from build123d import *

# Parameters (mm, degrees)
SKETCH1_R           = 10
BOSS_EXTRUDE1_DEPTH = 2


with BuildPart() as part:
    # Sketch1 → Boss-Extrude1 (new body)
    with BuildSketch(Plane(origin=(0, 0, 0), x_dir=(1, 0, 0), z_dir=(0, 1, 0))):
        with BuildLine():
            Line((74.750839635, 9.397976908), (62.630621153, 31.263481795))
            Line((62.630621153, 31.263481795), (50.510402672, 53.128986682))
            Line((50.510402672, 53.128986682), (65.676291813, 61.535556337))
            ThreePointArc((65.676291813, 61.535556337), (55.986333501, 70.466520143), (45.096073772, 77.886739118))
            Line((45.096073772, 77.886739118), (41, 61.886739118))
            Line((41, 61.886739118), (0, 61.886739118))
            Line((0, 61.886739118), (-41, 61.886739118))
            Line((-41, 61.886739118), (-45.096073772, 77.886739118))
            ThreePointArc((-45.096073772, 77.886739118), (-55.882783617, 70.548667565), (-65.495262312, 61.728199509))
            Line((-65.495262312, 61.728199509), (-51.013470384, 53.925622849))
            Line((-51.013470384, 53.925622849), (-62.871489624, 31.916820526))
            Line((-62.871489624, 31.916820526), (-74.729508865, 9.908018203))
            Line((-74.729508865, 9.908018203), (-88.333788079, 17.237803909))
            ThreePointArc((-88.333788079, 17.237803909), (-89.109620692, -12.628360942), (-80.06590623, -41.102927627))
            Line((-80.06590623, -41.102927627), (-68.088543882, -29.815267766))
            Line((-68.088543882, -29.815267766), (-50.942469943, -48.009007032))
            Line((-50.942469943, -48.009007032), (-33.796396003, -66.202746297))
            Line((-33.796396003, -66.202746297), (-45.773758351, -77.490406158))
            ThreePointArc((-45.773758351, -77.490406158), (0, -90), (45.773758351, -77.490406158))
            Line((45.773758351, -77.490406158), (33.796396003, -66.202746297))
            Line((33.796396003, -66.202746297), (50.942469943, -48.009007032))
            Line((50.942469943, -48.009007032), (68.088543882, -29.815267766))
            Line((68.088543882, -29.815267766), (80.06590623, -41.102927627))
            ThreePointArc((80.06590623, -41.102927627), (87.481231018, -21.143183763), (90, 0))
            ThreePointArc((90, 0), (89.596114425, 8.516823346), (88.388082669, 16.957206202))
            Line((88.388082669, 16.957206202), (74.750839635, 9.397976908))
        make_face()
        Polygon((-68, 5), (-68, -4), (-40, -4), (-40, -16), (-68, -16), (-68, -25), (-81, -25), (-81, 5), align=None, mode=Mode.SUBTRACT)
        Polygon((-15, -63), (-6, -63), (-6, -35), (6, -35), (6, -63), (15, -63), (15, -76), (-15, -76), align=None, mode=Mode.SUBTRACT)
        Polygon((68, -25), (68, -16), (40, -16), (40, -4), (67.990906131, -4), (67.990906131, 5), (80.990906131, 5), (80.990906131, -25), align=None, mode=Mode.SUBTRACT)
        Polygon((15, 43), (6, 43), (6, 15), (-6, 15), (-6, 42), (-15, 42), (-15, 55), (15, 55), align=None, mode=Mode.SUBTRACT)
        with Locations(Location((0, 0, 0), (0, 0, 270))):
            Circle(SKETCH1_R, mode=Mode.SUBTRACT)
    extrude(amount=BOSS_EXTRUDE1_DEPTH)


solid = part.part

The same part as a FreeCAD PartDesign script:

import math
import FreeCAD as App
import Part
import Sketcher

doc = App.newDocument("Part")
params = doc.addObject("Spreadsheet::Sheet", "Params")
for row, (alias, value) in enumerate([
    ("sketch1_diameter", "20 mm"),
    ("sketch1_radius", "90 mm"),
    ("sketch1_width", "82 mm"),
    ("sketch1_width2", "9 mm"),
    ("sketch1_width3", "12 mm"),
    ("pad1_length", "2 mm"),
], start=1):
    params.set(f"A{row}", alias)
    params.set(f"B{row}", "=" + value)
    params.setAlias(f"B{row}", alias)

body = doc.addObject("PartDesign::Body", "Body")

# Sketch on XZ plane
sketch1 = doc.addObject("Sketcher::SketchObject", "Sketch")
body.addObject(sketch1)
sketch1.AttachmentSupport = (doc.XZ_Plane, [""])
sketch1.MapMode = "FlatFace"
sketch1.addGeometry([
    Part.LineSegment(App.Vector(74.75084, -9.397977, 0), App.Vector(62.630621, -31.263482, 0)),  # 0
    Part.LineSegment(App.Vector(62.630621, -31.263482, 0), App.Vector(50.510403, -53.128987, 0)),  # 1
    Part.LineSegment(App.Vector(50.510403, -53.128987, 0), App.Vector(65.676292, -61.535556, 0)),  # 2
    Part.ArcOfCircle(Part.Circle(App.Vector(0, 0, 0), App.Vector(0, 0, 1), 90), math.radians(-59.92935), math.radians(-43.135685)),  # 3
    Part.LineSegment(App.Vector(45.096074, -77.886739, 0), App.Vector(41, -61.886739, 0)),  # 4
    Part.LineSegment(App.Vector(41, -61.886739, 0), App.Vector(-41, -61.886739, 0)),  # 5
    Part.LineSegment(App.Vector(-41, -61.886739, 0), App.Vector(-45.096074, -77.886739, 0)),  # 6
    Part.ArcOfCircle(Part.Circle(App.Vector(0, 0, 0), App.Vector(0, 0, 1), 90), math.radians(-136.696022), math.radians(-120.070649)),  # 7
    Part.LineSegment(App.Vector(-65.495262, -61.7282, 0), App.Vector(-51.01347, -53.925623, 0)),  # 8
    Part.LineSegment(App.Vector(-51.01347, -53.925623, 0), App.Vector(-62.87149, -31.916821, 0)),  # 9
    Part.LineSegment(App.Vector(-62.87149, -31.916821, 0), App.Vector(-74.729509, -9.908018, 0)),  # 10
    Part.LineSegment(App.Vector(-74.729509, -9.908018, 0), App.Vector(-88.333788, -17.237804, 0)),  # 11
    Part.ArcOfCircle(Part.Circle(App.Vector(0, 0, 0), App.Vector(0, 0, 1), 90), math.radians(152.825683), math.radians(191.042154)),  # 12
    Part.LineSegment(App.Vector(-80.065906, 41.102928, 0), App.Vector(-68.088544, 29.815268, 0)),  # 13
    Part.LineSegment(App.Vector(-68.088544, 29.815268, 0), App.Vector(-50.94247, 48.009007, 0)),  # 14
    Part.LineSegment(App.Vector(-50.94247, 48.009007, 0), App.Vector(-33.796396, 66.202746, 0)),  # 15
    Part.LineSegment(App.Vector(-33.796396, 66.202746, 0), App.Vector(-45.773758, 77.490406, 0)),  # 16
    Part.ArcOfCircle(Part.Circle(App.Vector(0, 0, 0), App.Vector(0, 0, 1), 90), math.radians(59.429557), math.radians(120.570443)),  # 17
    Part.LineSegment(App.Vector(45.773758, 77.490406, 0), App.Vector(33.796396, 66.202746, 0)),  # 18
    Part.LineSegment(App.Vector(33.796396, 66.202746, 0), App.Vector(50.94247, 48.009007, 0)),  # 19
    Part.LineSegment(App.Vector(50.94247, 48.009007, 0), App.Vector(68.088544, 29.815268, 0)),  # 20
    Part.LineSegment(App.Vector(68.088544, 29.815268, 0), App.Vector(80.065906, 41.102928, 0)),  # 21
    Part.ArcOfCircle(Part.Circle(App.Vector(0, 0, 0), App.Vector(0, 0, 1), 90), math.radians(0), math.radians(27.174317)),  # 22
    Part.ArcOfCircle(Part.Circle(App.Vector(0, 0, 0), App.Vector(0, 0, 1), 90), math.radians(-10.860207), math.radians(0)),  # 23
    Part.LineSegment(App.Vector(88.388083, -16.957206, 0), App.Vector(74.75084, -9.397977, 0)),  # 24
    Part.LineSegment(App.Vector(-15, 76, 0), App.Vector(-15, 63, 0)),  # 25
    Part.LineSegment(App.Vector(-15, 63, 0), App.Vector(-6, 63, 0)),  # 26
    Part.LineSegment(App.Vector(-6, 63, 0), App.Vector(-6, 35, 0)),  # 27
    Part.LineSegment(App.Vector(-6, 35, 0), App.Vector(6, 35, 0)),  # 28
    Part.LineSegment(App.Vector(6, 35, 0), App.Vector(6, 63, 0)),  # 29
    Part.LineSegment(App.Vector(6, 63, 0), App.Vector(15, 63, 0)),  # 30
    Part.LineSegment(App.Vector(15, 63, 0), App.Vector(15, 76, 0)),  # 31
    Part.LineSegment(App.Vector(15, 76, 0), App.Vector(-15, 76, 0)),  # 32
    Part.LineSegment(App.Vector(-81, -5, 0), App.Vector(-68, -5, 0)),  # 33
    Part.LineSegment(App.Vector(-68, -5, 0), App.Vector(-68, 4, 0)),  # 34
    Part.LineSegment(App.Vector(-68, 4, 0), App.Vector(-40, 4, 0)),  # 35
    Part.LineSegment(App.Vector(-40, 4, 0), App.Vector(-40, 16, 0)),  # 36
    Part.LineSegment(App.Vector(-40, 16, 0), App.Vector(-68, 16, 0)),  # 37
    Part.LineSegment(App.Vector(-68, 16, 0), App.Vector(-68, 25, 0)),  # 38
    Part.LineSegment(App.Vector(-68, 25, 0), App.Vector(-81, 25, 0)),  # 39
    Part.LineSegment(App.Vector(-81, 25, 0), App.Vector(-81, -5, 0)),  # 40
    Part.Circle(App.Vector(0, 0, 0), App.Vector(0, 0, 1), 10),  # 41
    Part.LineSegment(App.Vector(80.990906, 25, 0), App.Vector(68, 25, 0)),  # 42
    Part.LineSegment(App.Vector(68, 25, 0), App.Vector(68, 16, 0)),  # 43
    Part.LineSegment(App.Vector(68, 16, 0), App.Vector(40, 16, 0)),  # 44
    Part.LineSegment(App.Vector(40, 16, 0), App.Vector(40, 4, 0)),  # 45
    Part.LineSegment(App.Vector(40, 4, 0), App.Vector(67.990906, 4, 0)),  # 46
    Part.LineSegment(App.Vector(67.990906, 4, 0), App.Vector(67.990906, -5, 0)),  # 47
    Part.LineSegment(App.Vector(67.990906, -5, 0), App.Vector(80.990906, -5, 0)),  # 48
    Part.LineSegment(App.Vector(80.990906, -5, 0), App.Vector(80.990906, 25, 0)),  # 49
    Part.LineSegment(App.Vector(15, -55, 0), App.Vector(15, -43, 0)),  # 50
    Part.LineSegment(App.Vector(15, -43, 0), App.Vector(6, -43, 0)),  # 51
    Part.LineSegment(App.Vector(6, -43, 0), App.Vector(6, -15, 0)),  # 52
    Part.LineSegment(App.Vector(6, -15, 0), App.Vector(-6, -15, 0)),  # 53
    Part.LineSegment(App.Vector(-6, -15, 0), App.Vector(-6, -42, 0)),  # 54
    Part.LineSegment(App.Vector(-6, -42, 0), App.Vector(-15, -42, 0)),  # 55
    Part.LineSegment(App.Vector(-15, -42, 0), App.Vector(-15, -55, 0)),  # 56
    Part.LineSegment(App.Vector(-15, -55, 0), App.Vector(15, -55, 0)),  # 57
], False)
sketch1.addConstraint([
    Sketcher.Constraint("Coincident", 0, 2, 1, 1),
    Sketcher.Constraint("Coincident", 1, 2, 2, 1),
    Sketcher.Constraint("Coincident", 2, 2, 3, 2),
    Sketcher.Constraint("Coincident", 3, 1, 4, 1),
    Sketcher.Constraint("Coincident", 4, 2, 5, 1),
    Sketcher.Constraint("Coincident", 5, 2, 6, 1),
    Sketcher.Constraint("Coincident", 6, 2, 7, 2),
    Sketcher.Constraint("Coincident", 7, 1, 8, 1),
    Sketcher.Constraint("Coincident", 8, 2, 9, 1),
    Sketcher.Constraint("Coincident", 9, 2, 10, 1),
    Sketcher.Constraint("Coincident", 10, 2, 11, 1),
    Sketcher.Constraint("Coincident", 11, 2, 12, 2),
    Sketcher.Constraint("Coincident", 12, 1, 13, 1),
    Sketcher.Constraint("Coincident", 13, 2, 14, 1),
    Sketcher.Constraint("Coincident", 14, 2, 15, 1),
    Sketcher.Constraint("Coincident", 15, 2, 16, 1),
    Sketcher.Constraint("Coincident", 16, 2, 17, 2),
    Sketcher.Constraint("Coincident", 17, 1, 18, 1),
    Sketcher.Constraint("Coincident", 18, 2, 19, 1),
    Sketcher.Constraint("Coincident", 19, 2, 20, 1),
    Sketcher.Constraint("Coincident", 20, 2, 21, 1),
    Sketcher.Constraint("Coincident", 21, 2, 22, 2),
    Sketcher.Constraint("Tangent", 22, 1, 23, 2),
    Sketcher.Constraint("Coincident", 23, 1, 24, 1),
    Sketcher.Constraint("Coincident", 24, 2, 0, 1),
    Sketcher.Constraint("Coincident", 25, 2, 26, 1),
    Sketcher.Constraint("Coincident", 26, 2, 27, 1),
    Sketcher.Constraint("Coincident", 27, 2, 28, 1),
    Sketcher.Constraint("Coincident", 28, 2, 29, 1),
    Sketcher.Constraint("Coincident", 29, 2, 30, 1),
    Sketcher.Constraint("Coincident", 30, 2, 31, 1),
    Sketcher.Constraint("Coincident", 31, 2, 32, 1),
    Sketcher.Constraint("Coincident", 32, 2, 25, 1),
    Sketcher.Constraint("Coincident", 33, 2, 34, 1),
    Sketcher.Constraint("Coincident", 34, 2, 35, 1),
    Sketcher.Constraint("Coincident", 35, 2, 36, 1),
    Sketcher.Constraint("Coincident", 36, 2, 37, 1),
    Sketcher.Constraint("Coincident", 37, 2, 38, 1),
    Sketcher.Constraint("Coincident", 38, 2, 39, 1),
    Sketcher.Constraint("Coincident", 39, 2, 40, 1),
    Sketcher.Constraint("Coincident", 40, 2, 33, 1),
    Sketcher.Constraint("Coincident", 42, 2, 43, 1),
    Sketcher.Constraint("Coincident", 43, 2, 44, 1),
    Sketcher.Constraint("Coincident", 44, 2, 45, 1),
    Sketcher.Constraint("Coincident", 45, 2, 46, 1),
    Sketcher.Constraint("Coincident", 46, 2, 47, 1),
    Sketcher.Constraint("Coincident", 47, 2, 48, 1),
    Sketcher.Constraint("Coincident", 48, 2, 49, 1),
    Sketcher.Constraint("Coincident", 49, 2, 42, 1),
    Sketcher.Constraint("Coincident", 50, 2, 51, 1),
    Sketcher.Constraint("Coincident", 51, 2, 52, 1),
    Sketcher.Constraint("Coincident", 52, 2, 53, 1),
    Sketcher.Constraint("Coincident", 53, 2, 54, 1),
    Sketcher.Constraint("Coincident", 54, 2, 55, 1),
    Sketcher.Constraint("Coincident", 55, 2, 56, 1),
    Sketcher.Constraint("Coincident", 56, 2, 57, 1),
    Sketcher.Constraint("Coincident", 57, 2, 50, 1),
    Sketcher.Constraint("Horizontal", 5),
    Sketcher.Constraint("Vertical", 25),
    Sketcher.Constraint("Horizontal", 26),
    Sketcher.Constraint("Vertical", 27),
    Sketcher.Constraint("Horizontal", 28),
    Sketcher.Constraint("Vertical", 29),
    Sketcher.Constraint("Horizontal", 30),
    Sketcher.Constraint("Vertical", 31),
    Sketcher.Constraint("Horizontal", 32),
    Sketcher.Constraint("Horizontal", 33),
    Sketcher.Constraint("Vertical", 34),
    Sketcher.Constraint("Horizontal", 35),
    Sketcher.Constraint("Vertical", 36),
    Sketcher.Constraint("Horizontal", 37),
    Sketcher.Constraint("Vertical", 38),
    Sketcher.Constraint("Horizontal", 39),
    Sketcher.Constraint("Vertical", 40),
    Sketcher.Constraint("Horizontal", 42),
    Sketcher.Constraint("Vertical", 43),
    Sketcher.Constraint("Horizontal", 44),
    Sketcher.Constraint("Vertical", 45),
    Sketcher.Constraint("Horizontal", 46),
    Sketcher.Constraint("Vertical", 47),
    Sketcher.Constraint("Horizontal", 48),
    Sketcher.Constraint("Vertical", 49),
    Sketcher.Constraint("Vertical", 50),
    Sketcher.Constraint("Horizontal", 51),
    Sketcher.Constraint("Vertical", 52),
    Sketcher.Constraint("Horizontal", 53),
    Sketcher.Constraint("Vertical", 54),
    Sketcher.Constraint("Horizontal", 55),
    Sketcher.Constraint("Vertical", 56),
    Sketcher.Constraint("Horizontal", 57),
    Sketcher.Constraint("Coincident", 3, 3, -1, 1),
    Sketcher.Constraint("Coincident", 7, 3, -1, 1),
    Sketcher.Constraint("Coincident", 12, 3, -1, 1),
    Sketcher.Constraint("Coincident", 17, 3, -1, 1),
    Sketcher.Constraint("Coincident", 22, 3, -1, 1),
    Sketcher.Constraint("Coincident", 41, 3, -1, 1),
    Sketcher.Constraint("Equal", 3, 7),
    Sketcher.Constraint("Equal", 7, 12),
    Sketcher.Constraint("Equal", 12, 17),
    Sketcher.Constraint("Equal", 17, 22),
    Sketcher.Constraint("Equal", 22, 23),
    Sketcher.Constraint("Symmetric", 15, 2, 18, 2, -2),
    Sketcher.Constraint("Symmetric", 14, 2, 19, 2, -2),
    Sketcher.Constraint("Symmetric", 13, 2, 20, 2, -2),
    Sketcher.Constraint("Symmetric", 26, 2, 29, 2, -2),
    Sketcher.Constraint("Symmetric", 38, 2, 42, 2, -2),
    Sketcher.Constraint("Symmetric", 36, 2, 44, 2, -2),
    Sketcher.Constraint("PointOnObject", 22, 1, -1),
    Sketcher.Constraint("Parallel", 0, 1),
    Sketcher.Constraint("Perpendicular", 1, 2),
    Sketcher.Constraint("Perpendicular", 8, 9),
    Sketcher.Constraint("Parallel", 9, 10),
    Sketcher.Constraint("Perpendicular", 10, 11),
    Sketcher.Constraint("Perpendicular", 13, 14),
    Sketcher.Constraint("Parallel", 14, 15),
    Sketcher.Constraint("Perpendicular", 15, 16),
    Sketcher.Constraint("Perpendicular", 18, 19),
    Sketcher.Constraint("Perpendicular", 20, 21),
    Sketcher.Constraint("Parallel", 2, 24),
    Sketcher.Constraint("Horizontal", 3, 1, 6, 2),
    Sketcher.Constraint("Horizontal", 35, 2, 45, 2),
    Sketcher.Constraint("Horizontal", 40, 2, 47, 2),
    Sketcher.Constraint("Vertical", 34, 2, 37, 2),
    Sketcher.Constraint("Vertical", 31, 2, 50, 2),
    Sketcher.Constraint("Vertical", 29, 2, 51, 2),
    Sketcher.Constraint("Vertical", 27, 2, 53, 2),
    Sketcher.Constraint("Vertical", 32, 2, 55, 2),
    Sketcher.Constraint("Equal", 26, 30),
    Sketcher.Constraint("Equal", 39, 48),
    Sketcher.Constraint("Equal", 48, 25),
    Sketcher.Constraint("Equal", 44, 27),
    Sketcher.Constraint("Equal", 55, 34),
    Sketcher.Constraint("Equal", 53, 36),
    Sketcher.Constraint("Equal", 34, 38),
    Sketcher.Constraint("Equal", 45, 50),
    Sketcher.Constraint("Equal", 29, 52),
    Sketcher.Constraint("Equal", 31, 56),
    Sketcher.Constraint("Equal", 0, 1),
    Sketcher.Constraint("Equal", 4, 6),
    Sketcher.Constraint("Equal", 1, 9),
    Sketcher.Constraint("Equal", 9, 10),
    Sketcher.Constraint("Equal", 10, 14),
    Sketcher.Constraint("Equal", 14, 15),
    Sketcher.Constraint("Equal", 13, 16),
    Sketcher.Constraint("Diameter", 41, 20.0),
    Sketcher.Constraint("Radius", 3, 90.0),
    Sketcher.Constraint("DistanceX", 5, 2, 5, 1, 82.0),
    Sketcher.Constraint("DistanceX", 26, 1, 26, 2, 9.0),
    Sketcher.Constraint("DistanceX", 28, 1, 28, 2, 12.0),
    Sketcher.Constraint("DistanceX", 33, 1, 33, 2, 13.0),
    Sketcher.Constraint("DistanceX", 35, 1, 35, 2, 28.0),
    Sketcher.Constraint("Distance", 0, 25.0),
    Sketcher.Constraint("DistanceY", -1, 1, 25, 2, 63.0),
    Sketcher.Constraint("DistanceX", 33, 2, -1, 1, 68.0),
    Sketcher.Constraint("DistanceY", 33, 2, -1, 1, 5.0),
    Sketcher.Constraint("DistanceY", 50, 2, -1, 1, 43.0),
    Sketcher.Constraint("Distance", 8, 16.45),
    Sketcher.Constraint("DistanceY", 7, 1, -1, 1, 61.7282),
    Sketcher.Constraint("Distance", 2, 17.339971),
    Sketcher.Constraint("Distance", 24, 15.592189),
    Sketcher.Constraint("DistanceX", 42, 2, 42, 1, 12.990906),
    Sketcher.Constraint("DistanceX", -1, 1, 0, 2, 62.630621),
    Sketcher.Constraint("DistanceY", 3, 1, -1, 1, 77.886739),
    Sketcher.Constraint("DistanceY", 4, 2, -1, 1, 61.886739),
    Sketcher.Constraint("DistanceX", 8, 2, -1, 1, 51.01347),
    Sketcher.Constraint("DistanceX", 14, 2, -1, 1, 50.94247),
    Sketcher.Constraint("DistanceX", 16, 2, -1, 1, 45.773758),
])
sketch1.setExpression("Constraints[144]", "Params.sketch1_diameter")
sketch1.setExpression("Constraints[145]", "Params.sketch1_radius")
sketch1.setExpression("Constraints[146]", "Params.sketch1_width")
sketch1.setExpression("Constraints[147]", "Params.sketch1_width2")
sketch1.setExpression("Constraints[148]", "Params.sketch1_width3")
pad1 = doc.addObject("PartDesign::Pad", "Pad")
body.addObject(pad1)
pad1.Profile = sketch1
pad1.setExpression("Length", "Params.pad1_length")
pad1.Reversed = True

doc.recompute()
